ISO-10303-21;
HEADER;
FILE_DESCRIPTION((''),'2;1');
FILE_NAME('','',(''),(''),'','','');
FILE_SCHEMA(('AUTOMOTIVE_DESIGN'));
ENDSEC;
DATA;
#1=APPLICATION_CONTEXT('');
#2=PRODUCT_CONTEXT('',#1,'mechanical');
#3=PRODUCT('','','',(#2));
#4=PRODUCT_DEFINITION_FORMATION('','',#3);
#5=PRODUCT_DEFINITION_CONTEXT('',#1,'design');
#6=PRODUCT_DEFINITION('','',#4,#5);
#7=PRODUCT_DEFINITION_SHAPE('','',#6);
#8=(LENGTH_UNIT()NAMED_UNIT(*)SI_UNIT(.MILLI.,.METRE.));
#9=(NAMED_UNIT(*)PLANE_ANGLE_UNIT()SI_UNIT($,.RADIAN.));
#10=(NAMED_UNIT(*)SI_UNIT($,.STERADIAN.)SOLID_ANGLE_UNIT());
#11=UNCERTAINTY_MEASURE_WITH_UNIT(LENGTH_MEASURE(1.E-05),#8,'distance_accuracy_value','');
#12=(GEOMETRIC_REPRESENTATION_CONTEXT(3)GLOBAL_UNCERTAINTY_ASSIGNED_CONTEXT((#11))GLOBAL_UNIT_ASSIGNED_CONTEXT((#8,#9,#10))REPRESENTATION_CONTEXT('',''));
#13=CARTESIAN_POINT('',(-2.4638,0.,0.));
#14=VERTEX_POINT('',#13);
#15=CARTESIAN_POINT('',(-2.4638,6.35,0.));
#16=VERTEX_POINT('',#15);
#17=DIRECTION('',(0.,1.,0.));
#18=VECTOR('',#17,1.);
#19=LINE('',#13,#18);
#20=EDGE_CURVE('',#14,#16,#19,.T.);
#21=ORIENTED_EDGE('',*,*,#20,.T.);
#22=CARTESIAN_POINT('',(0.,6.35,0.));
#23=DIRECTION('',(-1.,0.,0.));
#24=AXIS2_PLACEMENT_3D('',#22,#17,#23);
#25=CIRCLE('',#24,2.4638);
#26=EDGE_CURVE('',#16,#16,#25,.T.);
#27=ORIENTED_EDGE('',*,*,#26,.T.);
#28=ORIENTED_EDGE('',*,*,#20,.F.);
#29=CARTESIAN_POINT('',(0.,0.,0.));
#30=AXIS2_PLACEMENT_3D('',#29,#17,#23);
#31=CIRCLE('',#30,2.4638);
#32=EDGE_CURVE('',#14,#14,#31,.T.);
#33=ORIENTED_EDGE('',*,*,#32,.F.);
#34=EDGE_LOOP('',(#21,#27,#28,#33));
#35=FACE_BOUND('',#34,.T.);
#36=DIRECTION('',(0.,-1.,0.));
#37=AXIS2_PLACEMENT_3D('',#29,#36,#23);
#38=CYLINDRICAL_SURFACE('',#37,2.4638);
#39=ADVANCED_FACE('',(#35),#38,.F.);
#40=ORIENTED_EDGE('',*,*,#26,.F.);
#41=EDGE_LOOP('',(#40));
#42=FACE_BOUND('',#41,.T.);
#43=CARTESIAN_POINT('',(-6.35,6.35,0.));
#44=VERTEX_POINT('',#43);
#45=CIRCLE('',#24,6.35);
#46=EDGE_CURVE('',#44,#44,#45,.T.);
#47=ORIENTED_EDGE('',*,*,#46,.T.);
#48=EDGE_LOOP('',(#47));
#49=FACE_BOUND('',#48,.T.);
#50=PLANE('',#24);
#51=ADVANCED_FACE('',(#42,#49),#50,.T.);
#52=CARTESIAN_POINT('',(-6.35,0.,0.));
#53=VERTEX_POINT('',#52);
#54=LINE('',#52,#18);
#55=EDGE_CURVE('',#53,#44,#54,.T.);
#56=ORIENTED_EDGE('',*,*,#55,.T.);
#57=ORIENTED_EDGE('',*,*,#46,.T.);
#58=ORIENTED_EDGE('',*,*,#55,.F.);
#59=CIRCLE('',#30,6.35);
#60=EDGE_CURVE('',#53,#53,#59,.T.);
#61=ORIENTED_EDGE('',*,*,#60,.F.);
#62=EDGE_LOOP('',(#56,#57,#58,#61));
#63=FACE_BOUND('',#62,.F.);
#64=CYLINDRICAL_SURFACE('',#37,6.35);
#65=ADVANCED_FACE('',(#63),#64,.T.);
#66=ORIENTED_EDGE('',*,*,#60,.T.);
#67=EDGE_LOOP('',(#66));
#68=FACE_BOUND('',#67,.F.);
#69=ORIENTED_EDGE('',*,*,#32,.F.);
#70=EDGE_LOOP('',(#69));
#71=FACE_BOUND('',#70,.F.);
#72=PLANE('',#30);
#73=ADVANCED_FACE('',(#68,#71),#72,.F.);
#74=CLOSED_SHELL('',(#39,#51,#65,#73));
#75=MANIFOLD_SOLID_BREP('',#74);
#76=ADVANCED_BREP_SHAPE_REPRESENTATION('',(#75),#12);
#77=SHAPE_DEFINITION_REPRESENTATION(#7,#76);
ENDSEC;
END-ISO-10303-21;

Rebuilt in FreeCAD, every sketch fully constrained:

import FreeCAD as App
import Part
import Sketcher

V = App.Vector
Q = App.Units.Quantity

doc = App.newDocument("Part")
params = doc.addObject("Spreadsheet::Sheet", "Params")
for row, (alias, value) in enumerate([
    ("sketch1_diameter", "0.5 in"),
    ("sketch1_diameter2", "0.194 in"),
    ("pad1_length", "0.25 in"),
], start=1):
    params.set(f"A{row}", alias)
    params.set(f"B{row}", "=" + value)
    params.setAlias(f"B{row}", alias)

body = doc.addObject("PartDesign::Body", "Body")

# Sketch on XZ plane
sketch1 = doc.addObject("Sketcher::SketchObject", "Sketch")
body.addObject(sketch1)
sketch1.AttachmentSupport = (doc.XZ_Plane, [""])
sketch1.MapMode = "FlatFace"
sketch1.addGeometry([
    Part.Circle(V(0, 0, 0), V(0, 0, 1), 6.35),
    Part.Circle(V(0, 0, 0), V(0, 0, 1), 2.4638),
], False)
sketch1.addConstraint([
    Sketcher.Constraint("Coincident", 0, 3, -1, 1),
    Sketcher.Constraint("Coincident", 1, 3, -1, 1),
    Sketcher.Constraint("Diameter", 0, Q("0.5 in")),
    Sketcher.Constraint("Diameter", 1, Q("0.194 in")),
])
sketch1.setExpression("Constraints[2]", "Params.sketch1_diameter")
sketch1.setExpression("Constraints[3]", "Params.sketch1_diameter2")
pad1 = doc.addObject("PartDesign::Pad", "Pad")
body.addObject(pad1)
pad1.Profile = sketch1
pad1.setExpression("Length", "Params.pad1_length")
pad1.Reversed = True

doc.recompute()
